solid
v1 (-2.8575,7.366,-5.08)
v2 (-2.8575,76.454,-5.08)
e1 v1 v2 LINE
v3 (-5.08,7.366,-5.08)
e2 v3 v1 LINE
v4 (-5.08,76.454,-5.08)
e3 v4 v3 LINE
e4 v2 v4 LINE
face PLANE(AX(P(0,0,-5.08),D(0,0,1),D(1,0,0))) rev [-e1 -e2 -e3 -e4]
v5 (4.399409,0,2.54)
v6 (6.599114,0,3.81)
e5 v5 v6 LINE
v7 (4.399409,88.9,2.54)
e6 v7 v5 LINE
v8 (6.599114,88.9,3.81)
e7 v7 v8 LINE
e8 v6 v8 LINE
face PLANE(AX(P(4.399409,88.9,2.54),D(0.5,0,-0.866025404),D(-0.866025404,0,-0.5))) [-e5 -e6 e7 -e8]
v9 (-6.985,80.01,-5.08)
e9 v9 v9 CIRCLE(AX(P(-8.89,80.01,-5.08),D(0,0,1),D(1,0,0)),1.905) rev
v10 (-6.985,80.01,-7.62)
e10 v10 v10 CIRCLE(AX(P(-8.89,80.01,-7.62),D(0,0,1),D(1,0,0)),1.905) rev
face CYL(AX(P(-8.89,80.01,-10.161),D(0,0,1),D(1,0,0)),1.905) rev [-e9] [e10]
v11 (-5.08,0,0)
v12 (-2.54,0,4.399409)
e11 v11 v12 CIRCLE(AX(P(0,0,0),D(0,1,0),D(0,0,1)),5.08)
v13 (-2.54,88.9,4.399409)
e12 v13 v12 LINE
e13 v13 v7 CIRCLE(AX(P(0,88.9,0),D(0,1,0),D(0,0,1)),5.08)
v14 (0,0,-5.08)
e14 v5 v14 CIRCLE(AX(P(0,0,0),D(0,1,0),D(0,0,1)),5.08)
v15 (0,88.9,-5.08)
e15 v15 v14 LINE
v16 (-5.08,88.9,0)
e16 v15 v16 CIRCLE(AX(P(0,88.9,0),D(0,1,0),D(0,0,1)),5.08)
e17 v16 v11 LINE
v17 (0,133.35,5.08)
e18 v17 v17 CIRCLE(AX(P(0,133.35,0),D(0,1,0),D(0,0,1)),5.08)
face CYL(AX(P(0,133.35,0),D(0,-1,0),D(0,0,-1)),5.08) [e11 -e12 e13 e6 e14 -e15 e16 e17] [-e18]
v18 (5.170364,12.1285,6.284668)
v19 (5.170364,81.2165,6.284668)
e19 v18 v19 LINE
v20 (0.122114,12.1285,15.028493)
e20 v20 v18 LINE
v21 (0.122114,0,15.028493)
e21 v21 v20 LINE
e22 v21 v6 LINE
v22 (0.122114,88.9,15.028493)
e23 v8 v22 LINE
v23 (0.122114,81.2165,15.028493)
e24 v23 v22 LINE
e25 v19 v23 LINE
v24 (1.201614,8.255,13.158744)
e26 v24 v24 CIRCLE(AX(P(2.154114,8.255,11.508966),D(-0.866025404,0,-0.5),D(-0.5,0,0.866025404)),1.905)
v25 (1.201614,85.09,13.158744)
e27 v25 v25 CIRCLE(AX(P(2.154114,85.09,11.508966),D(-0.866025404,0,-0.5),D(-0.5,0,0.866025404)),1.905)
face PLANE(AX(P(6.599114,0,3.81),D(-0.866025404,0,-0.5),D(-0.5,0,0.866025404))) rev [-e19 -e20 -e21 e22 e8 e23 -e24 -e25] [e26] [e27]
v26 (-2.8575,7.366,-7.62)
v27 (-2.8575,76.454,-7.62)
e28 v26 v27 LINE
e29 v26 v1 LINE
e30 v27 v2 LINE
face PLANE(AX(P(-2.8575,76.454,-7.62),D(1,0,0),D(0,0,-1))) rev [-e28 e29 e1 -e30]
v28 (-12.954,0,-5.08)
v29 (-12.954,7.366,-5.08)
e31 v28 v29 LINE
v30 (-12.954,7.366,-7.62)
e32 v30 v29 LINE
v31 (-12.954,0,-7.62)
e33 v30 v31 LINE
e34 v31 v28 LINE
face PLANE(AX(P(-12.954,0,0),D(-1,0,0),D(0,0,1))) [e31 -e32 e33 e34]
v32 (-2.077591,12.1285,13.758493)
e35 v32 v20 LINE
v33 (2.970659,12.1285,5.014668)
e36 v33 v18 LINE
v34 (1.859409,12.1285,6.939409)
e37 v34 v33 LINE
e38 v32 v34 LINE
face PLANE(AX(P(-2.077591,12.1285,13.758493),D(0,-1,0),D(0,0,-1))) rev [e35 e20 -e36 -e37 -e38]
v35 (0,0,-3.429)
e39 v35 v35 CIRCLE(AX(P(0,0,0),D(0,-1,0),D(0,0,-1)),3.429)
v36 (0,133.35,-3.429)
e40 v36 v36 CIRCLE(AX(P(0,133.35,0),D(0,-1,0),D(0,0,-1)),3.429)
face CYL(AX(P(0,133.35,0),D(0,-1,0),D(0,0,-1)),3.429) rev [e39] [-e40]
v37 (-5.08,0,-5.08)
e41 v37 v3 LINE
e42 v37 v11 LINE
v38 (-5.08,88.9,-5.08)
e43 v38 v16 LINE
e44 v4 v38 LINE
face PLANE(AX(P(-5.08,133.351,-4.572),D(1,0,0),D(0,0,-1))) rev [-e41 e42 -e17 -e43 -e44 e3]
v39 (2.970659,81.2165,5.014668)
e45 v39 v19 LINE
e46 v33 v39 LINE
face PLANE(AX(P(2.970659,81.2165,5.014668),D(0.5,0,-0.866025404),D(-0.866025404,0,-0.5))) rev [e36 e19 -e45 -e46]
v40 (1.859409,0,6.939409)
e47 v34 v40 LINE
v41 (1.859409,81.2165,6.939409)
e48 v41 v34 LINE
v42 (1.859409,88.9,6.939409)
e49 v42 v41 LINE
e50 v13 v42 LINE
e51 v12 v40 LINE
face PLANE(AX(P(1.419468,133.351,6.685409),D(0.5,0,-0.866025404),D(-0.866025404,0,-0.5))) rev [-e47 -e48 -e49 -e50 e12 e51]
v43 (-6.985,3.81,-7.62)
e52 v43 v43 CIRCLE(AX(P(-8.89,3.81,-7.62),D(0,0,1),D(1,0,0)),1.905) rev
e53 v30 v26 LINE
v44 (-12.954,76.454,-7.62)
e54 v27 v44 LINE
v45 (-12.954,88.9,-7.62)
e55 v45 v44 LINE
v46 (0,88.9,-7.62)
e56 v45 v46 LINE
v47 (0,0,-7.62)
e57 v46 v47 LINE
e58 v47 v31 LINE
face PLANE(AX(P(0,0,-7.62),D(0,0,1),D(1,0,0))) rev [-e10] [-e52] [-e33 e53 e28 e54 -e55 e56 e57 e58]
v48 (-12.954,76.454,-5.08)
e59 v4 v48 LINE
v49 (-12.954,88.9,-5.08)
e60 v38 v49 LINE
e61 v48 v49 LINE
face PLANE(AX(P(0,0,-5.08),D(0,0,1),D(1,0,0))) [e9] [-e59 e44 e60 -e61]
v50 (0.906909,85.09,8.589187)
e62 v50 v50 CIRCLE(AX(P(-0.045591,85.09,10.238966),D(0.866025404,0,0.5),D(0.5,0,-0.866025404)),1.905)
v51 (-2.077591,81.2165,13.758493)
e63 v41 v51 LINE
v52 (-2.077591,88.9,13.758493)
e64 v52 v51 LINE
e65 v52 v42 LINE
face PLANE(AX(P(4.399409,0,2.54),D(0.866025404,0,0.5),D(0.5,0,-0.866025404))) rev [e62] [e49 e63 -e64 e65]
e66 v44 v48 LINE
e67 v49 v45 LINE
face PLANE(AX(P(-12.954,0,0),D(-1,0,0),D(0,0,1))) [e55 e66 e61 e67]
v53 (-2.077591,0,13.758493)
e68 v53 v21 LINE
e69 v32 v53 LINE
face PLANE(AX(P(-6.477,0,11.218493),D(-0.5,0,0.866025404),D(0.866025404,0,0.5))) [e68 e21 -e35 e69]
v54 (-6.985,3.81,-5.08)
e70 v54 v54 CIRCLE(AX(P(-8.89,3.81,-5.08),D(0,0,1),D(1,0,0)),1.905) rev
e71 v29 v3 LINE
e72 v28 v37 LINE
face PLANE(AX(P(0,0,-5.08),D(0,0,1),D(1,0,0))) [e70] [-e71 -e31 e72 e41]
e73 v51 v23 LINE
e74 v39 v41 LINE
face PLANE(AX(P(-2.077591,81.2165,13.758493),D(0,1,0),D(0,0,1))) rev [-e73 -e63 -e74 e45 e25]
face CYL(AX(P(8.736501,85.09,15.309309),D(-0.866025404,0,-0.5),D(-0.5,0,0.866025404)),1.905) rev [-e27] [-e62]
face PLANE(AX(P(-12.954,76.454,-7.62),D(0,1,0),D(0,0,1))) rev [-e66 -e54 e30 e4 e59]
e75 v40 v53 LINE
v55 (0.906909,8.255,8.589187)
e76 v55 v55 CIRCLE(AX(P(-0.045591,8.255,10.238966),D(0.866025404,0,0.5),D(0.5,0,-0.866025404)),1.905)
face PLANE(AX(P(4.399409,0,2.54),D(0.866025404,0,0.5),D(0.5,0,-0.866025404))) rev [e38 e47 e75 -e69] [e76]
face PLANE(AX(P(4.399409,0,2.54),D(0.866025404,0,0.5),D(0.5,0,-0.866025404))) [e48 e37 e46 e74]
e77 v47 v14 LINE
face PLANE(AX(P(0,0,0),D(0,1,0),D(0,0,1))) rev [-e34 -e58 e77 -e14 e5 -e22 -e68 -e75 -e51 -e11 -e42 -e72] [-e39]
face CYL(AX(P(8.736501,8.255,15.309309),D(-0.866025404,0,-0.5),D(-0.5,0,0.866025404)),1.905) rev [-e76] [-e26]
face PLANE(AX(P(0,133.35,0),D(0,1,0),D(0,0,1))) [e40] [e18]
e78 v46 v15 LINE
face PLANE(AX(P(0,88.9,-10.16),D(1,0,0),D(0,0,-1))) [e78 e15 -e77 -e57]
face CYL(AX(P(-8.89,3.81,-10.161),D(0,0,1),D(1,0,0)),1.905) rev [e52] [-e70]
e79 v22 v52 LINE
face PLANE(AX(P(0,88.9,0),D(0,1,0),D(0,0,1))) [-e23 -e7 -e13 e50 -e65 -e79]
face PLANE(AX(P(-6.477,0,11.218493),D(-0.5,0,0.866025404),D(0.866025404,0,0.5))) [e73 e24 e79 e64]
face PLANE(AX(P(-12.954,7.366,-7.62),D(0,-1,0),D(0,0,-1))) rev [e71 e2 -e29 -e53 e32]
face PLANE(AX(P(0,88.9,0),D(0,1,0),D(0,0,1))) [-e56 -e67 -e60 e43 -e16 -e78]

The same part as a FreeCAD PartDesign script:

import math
import FreeCAD as App
import Part
import Sketcher
from FreeCAD import Vector
Q = App.Units.Quantity


def add_polygon(sketch, points):
    """Adds a closed chain of lines whose ends are joined by coincident constraints."""
    first, n = sketch.GeometryCount, len(points)
    for a, b in zip(points, points[1:] + points[:1]):
        sketch.addGeometry(Part.LineSegment(App.Vector(*a, 0), App.Vector(*b, 0)), False)
    for i in range(n):
        sketch.addConstraint(Sketcher.Constraint("Coincident", first + i, 2, first + (i + 1) % n, 1))

doc = App.newDocument("Part")
body = doc.addObject("PartDesign::Body", "Body")

sketch1 = body.newObject("Sketcher::SketchObject", "Sketch")
sketch1.AttachmentSupport = (doc.getObject("XZ_Plane"), [""])
sketch1.MapMode = "FlatFace"
sketch1.addGeometry(Part.Circle(Vector(0, 0, 0), Vector(0, 0, 1), 5.08), False)
sketch1.addConstraint([
    Sketcher.Constraint("Coincident", 0, 3, -1, 1),
    Sketcher.Constraint("Diameter", 0, Q("0.4 in")),
])
pad1 = body.newObject("PartDesign::Pad", "Pad")
pad1.Profile = sketch1
pad1.Length = Q("5.25 in")
pad1.Reversed = True

sketch2 = body.newObject("Sketcher::SketchObject", "Sketch001")
sketch2.AttachmentSupport = (doc.getObject("XZ_Plane"), [""])
sketch2.MapMode = "FlatFace"
sketch2.addGeometry(Part.Circle(Vector(0, 0, 0), Vector(0, 0, 1), 3.429), False)
sketch2.addConstraint([
    Sketcher.Constraint("Coincident", 0, 3, -1, 1),
    Sketcher.Constraint("Diameter", 0, Q("0.27 in")),
])
pocket1 = body.newObject("PartDesign::Pocket", "Pocket")
pocket1.Profile = sketch2
pocket1.Type = "ThroughAll"

sketch3 = body.newObject("Sketcher::SketchObject", "Sketch002")
sketch3.AttachmentSupport = (doc.getObject("XZ_Plane"), [""])
sketch3.MapMode = "FlatFace"
sketch3.addGeometry([
    Part.LineSegment(Vector(-5.842, 10.118641, 0), Vector(-2.54, 4.399409, 0)),
    Part.ArcOfCircle(Part.Circle(Vector(-0.777057, 0.448634, 0), Vector(0, 0, 1), 4.326268), math.radians(-174.047728), math.radians(114.047728)),
    Part.LineSegment(Vector(-5.08, 0, 0), Vector(-11.684, 0, 0)),
    Part.LineSegment(Vector(-11.684, 0, 0), Vector(-11.684, -10.16, 0)),
    Part.LineSegment(Vector(-11.684, -10.16, 0), Vector(0, -10.16, 0)),
    Part.LineSegment(Vector(0, -10.16, 0), Vector(0, -5.08, 0)),
    Part.ArcOfCircle(Part.Circle(Vector(0, 0, 0), Vector(0, 0, 1), 5.08), math.radians(-90), math.radians(30)),
    Part.LineSegment(Vector(4.399409, 2.54, 0), Vector(8.798818, 5.08, 0)),
    Part.LineSegment(Vector(8.798818, 5.08, 0), Vector(2.956818, 15.198641, 0)),
    Part.LineSegment(Vector(2.956818, 15.198641, 0), Vector(-5.842, 10.118641, 0)),
], False)
sketch3.addConstraint([
    Sketcher.Constraint("Coincident", 0, 2, 1, 2),
    Sketcher.Constraint("Coincident", 1, 1, 2, 1),
    Sketcher.Constraint("Coincident", 2, 2, 3, 1),
    Sketcher.Constraint("Coincident", 3, 2, 4, 1),
    Sketcher.Constraint("Coincident", 4, 2, 5, 1),
    Sketcher.Constraint("Coincident", 5, 2, 6, 1),
    Sketcher.Constraint("Coincident", 6, 2, 7, 1),
    Sketcher.Constraint("Coincident", 7, 2, 8, 1),
    Sketcher.Constraint("Coincident", 8, 2, 9, 1),
    Sketcher.Constraint("Coincident", 9, 2, 0, 1),
    Sketcher.Constraint("Horizontal", 2),
    Sketcher.Constraint("Vertical", 3),
    Sketcher.Constraint("Horizontal", 4),
    Sketcher.Constraint("Vertical", 5),
    Sketcher.Constraint("Coincident", 6, 3, -1, 1),
    Sketcher.Constraint("PointOnObject", 1, 1, -1),
    Sketcher.Constraint("PointOnObject", 4, 2, -2),
    Sketcher.Constraint("Perpendicular", 0, 7),
    Sketcher.Constraint("Perpendicular", 7, 8),
    Sketcher.Constraint("Perpendicular", 8, 9),
    Sketcher.Constraint("Radius", 6, Q("0.2 in")),
    Sketcher.Constraint("DistanceY", 3, 2, 3, 1, Q("0.4 in")),
    Sketcher.Constraint("Angle", 0, Q("-60 deg")),
    Sketcher.Constraint("Distance", 7, Q("0.2 in")),
    Sketcher.Constraint("Distance", 9, Q("0.4 in")),
    Sketcher.Constraint("DistanceX", 2, 2, 2, 1, Q("0.26 in")),
    Sketcher.Constraint("DistanceX", 4, 1, 4, 2, Q("0.46 in")),
    Sketcher.Constraint("DistanceX", 0, 2, -1, 1, Q("0.1 in")),
    Sketcher.Constraint("DistanceY", -1, 1, 6, 2, Q("0.1 in")),
    Sketcher.Constraint("Distance", 0, Q("0.26 in")),
    Sketcher.Constraint("Radius", 1, Q("4.326268 mm")),
])
pad2 = body.newObject("PartDesign::Pad", "Pad001")
pad2.Profile = sketch3
pad2.Length = Q("3.5 in")
pad2.Reversed = True

sketch4 = body.newObject("Sketcher::SketchObject", "Sketch003")
sketch4.AttachmentSupport = (doc.getObject("XY_Plane"), [""])
sketch4.MapMode = "FlatFace"
sketch4.addGeometry(Part.Circle(Vector(-8.89, 80.01, 0), Vector(0, 0, 1), 1.905), False)
sketch4.addConstraint([
    Sketcher.Constraint("Diameter", 0, Q("0.15 in")),
    Sketcher.Constraint("DistanceX", 0, 3, -1, 1, Q("0.35 in")),
    Sketcher.Constraint("DistanceY", -1, 1, 0, 3, Q("3.15 in")),
])
pocket2 = body.newObject("PartDesign::Pocket", "Pocket001")
pocket2.Profile = sketch4
pocket2.Type = "UpToFirst"

sketch5 = body.newObject("Sketcher::SketchObject", "Sketch004")
sketch5.AttachmentSupport = (doc.getObject("XY_Plane"), [""])
sketch5.MapMode = "FlatFace"
sketch5.addGeometry(Part.Circle(Vector(-8.89, 3.81, 0), Vector(0, 0, 1), 1.905), False)
sketch5.addConstraint([
    Sketcher.Constraint("Diameter", 0, Q("0.15 in")),
    Sketcher.Constraint("DistanceX", 0, 3, -1, 1, Q("0.35 in")),
    Sketcher.Constraint("DistanceY", -1, 1, 0, 3, Q("0.15 in")),
])
pocket3 = body.newObject("PartDesign::Pocket", "Pocket002")
pocket3.Profile = sketch5
pocket3.Type = "UpToFirst"

sketch6 = body.newObject("Sketcher::SketchObject", "Sketch005")
sketch6.Placement = App.Placement(Vector(0, 0, 0), App.Rotation(Vector(0.5, 0, -0.866025404), Vector(0, 1, 0), Vector(0.866025404, 0, 0.5), "ZXY"))
sketch6.addGeometry(Part.Circle(Vector(-8.89, 85.09, 0), Vector(0, 0, 1), 1.905), False)
sketch6.addConstraint([
    Sketcher.Constraint("Diameter", 0, Q("0.15 in")),
    Sketcher.Constraint("DistanceX", 0, 3, -1, 1, Q("0.35 in")),
    Sketcher.Constraint("DistanceY", -1, 1, 0, 3, Q("3.35 in")),
])
pocket4 = body.newObject("PartDesign::Pocket", "Pocket003")
pocket4.Profile = sketch6
pocket4.Type = "UpToFirst"
pocket4.Reversed = True

sketch7 = body.newObject("Sketcher::SketchObject", "Sketch006")
sketch7.Placement = App.Placement(Vector(0, 0, 0), App.Rotation(Vector(0.5, 0, -0.866025404), Vector(0, 1, 0), Vector(0.866025404, 0, 0.5), "ZXY"))
sketch7.addGeometry(Part.Circle(Vector(-8.89, 8.255, 0), Vector(0, 0, 1), 1.905), False)
sketch7.addConstraint([
    Sketcher.Constraint("Diameter", 0, Q("0.15 in")),
    Sketcher.Constraint("DistanceX", 0, 3, -1, 1, Q("0.35 in")),
    Sketcher.Constraint("DistanceY", -1, 1, 0, 3, Q("0.325 in")),
])
pocket5 = body.newObject("PartDesign::Pocket", "Pocket004")
pocket5.Profile = sketch7
pocket5.Type = "UpToFirst"
pocket5.Reversed = True

sketch8 = body.newObject("Sketcher::SketchObject", "Sketch007")
sketch8.AttachmentSupport = (doc.getObject("XZ_Plane"), [""])
sketch8.MapMode = "FlatFace"
add_polygon(sketch8, [(-1.882532, 12.404641), (-5.842, 10.118641), (-2.54, 4.399409), (1.419468, 6.685409)])
sketch8.addConstraint([
    Sketcher.Constraint("Perpendicular", 0, 1),
    Sketcher.Constraint("Perpendicular", 1, 2),
    Sketcher.Constraint("Perpendicular", 2, 3),
    Sketcher.Constraint("Angle", 0, Q("-150 deg")),
    Sketcher.Constraint("DistanceX", 1, 2, -1, 1, Q("0.1 in")),
    Sketcher.Constraint("Distance", 0, Q("0.18 in")),
    Sketcher.Constraint("Distance", 1, Q("0.26 in")),
    Sketcher.Constraint("DistanceY", -1, 1, 0, 2, Q("10.118641 mm")),
])
pocket6 = body.newObject("PartDesign::Pocket", "Pocket005")
pocket6.Profile = sketch8
pocket6.Type = "UpToFirst"

sketch9 = body.newObject("Sketcher::SketchObject", "Sketch008")
sketch9.AttachmentSupport = (doc.getObject("XZ_Plane"), [""])
sketch9.MapMode = "FlatFace"
add_polygon(sketch9, [(-11.684, 0), (-11.684, -4.572), (-5.08, -4.572), (-5.08, 0)])
sketch9.addConstraint([
    Sketcher.Constraint("Vertical", 0),
    Sketcher.Constraint("Horizontal", 1),
    Sketcher.Constraint("Vertical", 2),
    Sketcher.Constraint("Horizontal", 3),
    Sketcher.Constraint("PointOnObject", 2, 2, -1),
    Sketcher.Constraint("DistanceX", 1, 1, 1, 2, Q("0.26 in")),
    Sketcher.Constraint("DistanceY", 0, 2, 0, 1, Q("0.18 in")),
    Sketcher.Constraint("DistanceX", 1, 2, -1, 1, Q("0.2 in")),
])
pocket7 = body.newObject("PartDesign::Pocket", "Pocket006")
pocket7.Profile = sketch9
pocket7.Length = Q("3.5 in")

sketch10 = body.newObject("Sketcher::SketchObject", "Sketch009")
sketch10.AttachmentSupport = (doc.getObject("XY_Plane"), [""])
sketch10.MapMode = "FlatFace"
sketch10.AttachmentOffset = App.Placement(Vector(0, 0, -0.4 * 25.4), App.Rotation())
add_polygon(sketch10, [(0, 88.9), (0, 0), (-11.684, 0), (-11.684, 88.9)])
sketch10.addConstraint([
    Sketcher.Constraint("Vertical", 0),
    Sketcher.Constraint("Horizontal", 1),
    Sketcher.Constraint("Vertical", 2),
    Sketcher.Constraint("Horizontal", 3),
    Sketcher.Constraint("Coincident", 0, 2, -1, 1),
    Sketcher.Constraint("DistanceY", 0, 2, 0, 1, Q("3.5 in")),
    Sketcher.Constraint("DistanceX", 1, 2, 1, 1, Q("0.46 in")),
])
pocket8 = body.newObject("PartDesign::Pocket", "Pocket007")
pocket8.Profile = sketch10
pocket8.Length = Q("0.1 in")
pocket8.Reversed = True

sketch11 = body.newObject("Sketcher::SketchObject", "Sketch010")
sketch11.Placement = App.Placement(Vector(8.798818, 0, 5.08), App.Rotation(Vector(0.5, 0, -0.866025404), Vector(0, 1, 0), Vector(0.866025404, 0, 0.5), "ZXY"))
add_polygon(sketch11, [(-11.684, 88.9), (-11.684, 0), (0, 0), (0, 88.9)])
sketch11.addConstraint([
    Sketcher.Constraint("Vertical", 0),
    Sketcher.Constraint("Horizontal", 1),
    Sketcher.Constraint("Vertical", 2),
    Sketcher.Constraint("Horizontal", 3),
    Sketcher.Constraint("Coincident", 1, 2, -1, 1),
    Sketcher.Constraint("DistanceY", 0, 2, 0, 1, Q("3.5 in")),
    Sketcher.Constraint("DistanceX", 1, 1, 1, 2, Q("0.46 in")),
])
pocket9 = body.newObject("PartDesign::Pocket", "Pocket008")
pocket9.Profile = sketch11
pocket9.Length = Q("0.1 in")

sketch12 = body.newObject("Sketcher::SketchObject", "Sketch011")
sketch12.AttachmentSupport = (doc.getObject("XY_Plane"), [""])
sketch12.MapMode = "FlatFace"
sketch12.AttachmentOffset = App.Placement(Vector(0, 0, -0.18 * 25.4), App.Rotation())
add_polygon(sketch12, [(-11.684, 88.9), (-11.684, 0), (-5.08, 0), (-5.08, 88.9)])
sketch12.addConstraint([
    Sketcher.Constraint("Vertical", 0),
    Sketcher.Constraint("Horizontal", 1),
    Sketcher.Constraint("Vertical", 2),
    Sketcher.Constraint("Horizontal", 3),
    Sketcher.Constraint("PointOnObject", 0, 2, -1),
    Sketcher.Constraint("DistanceY", 0, 2, 0, 1, Q("3.5 in")),
    Sketcher.Constraint("DistanceX", 1, 1, 1, 2, Q("0.26 in")),
    Sketcher.Constraint("DistanceX", 1, 2, -1, 1, Q("0.2 in")),
])
pocket10 = body.newObject("PartDesign::Pocket", "Pocket009")
pocket10.Profile = sketch12
pocket10.Length = Q("0.02 in")

sketch13 = body.newObject("Sketcher::SketchObject", "Sketch012")
sketch13.Placement = App.Placement(Vector(3.959468, 0, 2.286), App.Rotation(Vector(-0.5, 0, 0.866025404), Vector(0, 1, 0), Vector(-0.866025404, 0, -0.5), "ZXY"))
add_polygon(sketch13, [(5.08, 88.9), (5.08, 0), (11.684, 0), (11.684, 88.9)])
sketch13.addConstraint([
    Sketcher.Constraint("Vertical", 0),
    Sketcher.Constraint("Horizontal", 1),
    Sketcher.Constraint("Vertical", 2),
    Sketcher.Constraint("Horizontal", 3),
    Sketcher.Constraint("PointOnObject", 0, 2, -1),
    Sketcher.Constraint("DistanceY", 0, 2, 0, 1, Q("3.5 in")),
    Sketcher.Constraint("DistanceX", 1, 1, 1, 2, Q("0.26 in")),
    Sketcher.Constraint("DistanceX", -1, 1, 0, 2, Q("0.2 in")),
])
pocket11 = body.newObject("PartDesign::Pocket", "Pocket010")
pocket11.Profile = sketch13
pocket11.Length = Q("0.02 in")

sketch14 = body.newObject("Sketcher::SketchObject", "Sketch013")
sketch14.Placement = App.Placement(Vector(-5.842, 0, 10.118641), App.Rotation(Vector(0.866025404, 0, 0.5), Vector(0, 1, 0), Vector(-0.5, 0, 0.866025404), "ZXY"))
add_polygon(sketch14, [(5.08, 88.9), (5.08, 0), (7.62, 0), (7.62, 88.9)])
sketch14.addConstraint([
    Sketcher.Constraint("Vertical", 0),
    Sketcher.Constraint("Horizontal", 1),
    Sketcher.Constraint("Vertical", 2),
    Sketcher.Constraint("Horizontal", 3),
    Sketcher.Constraint("PointOnObject", 0, 2, -1),
    Sketcher.Constraint("DistanceX", 1, 1, 1, 2, Q("0.1 in")),
    Sketcher.Constraint("DistanceY", 0, 2, 0, 1, Q("3.5 in")),
    Sketcher.Constraint("DistanceX", -1, 1, 0, 2, Q("0.2 in")),
])
pad3 = body.newObject("PartDesign::Pad", "Pad002")
pad3.Profile = sketch14
pad3.Length = Q("0.05 in")

sketch15 = body.newObject("Sketcher::SketchObject", "Sketch014")
sketch15.AttachmentSupport = (doc.getObject("YZ_Plane"), [""])
sketch15.MapMode = "FlatFace"
sketch15.AttachmentOffset = App.Placement(Vector(0, 0, -0.46 * 25.4), App.Rotation())
add_polygon(sketch15, [(88.9, -7.62), (0, -7.62), (0, -5.08), (88.9, -5.08)])
sketch15.addConstraint([
    Sketcher.Constraint("Horizontal", 0),
    Sketcher.Constraint("Vertical", 1),
    Sketcher.Constraint("Horizontal", 2),
    Sketcher.Constraint("Vertical", 3),
    Sketcher.Constraint("PointOnObject", 0, 2, -2),
    Sketcher.Constraint("DistanceX", 0, 2, 0, 1, Q("3.5 in")),
    Sketcher.Constraint("DistanceY", 1, 1, 1, 2, Q("0.1 in")),
    Sketcher.Constraint("DistanceY", 0, 2, -1, 1, Q("0.3 in")),
])
pad4 = body.newObject("PartDesign::Pad", "Pad003")
pad4.Profile = sketch15
pad4.Length = Q("0.05 in")
pad4.Reversed = True

sketch16 = body.newObject("Sketcher::SketchObject", "Sketch015")
sketch16.AttachmentSupport = (doc.getObject("XY_Plane"), [""])
sketch16.MapMode = "FlatFace"
sketch16.AttachmentOffset = App.Placement(Vector(0, 0, -0.2 * 25.4), App.Rotation())
add_polygon(sketch16, [(-12.954, 76.454), (-12.954, 7.366), (-2.8575, 7.366), (-2.8575, 76.454)])
sketch16.addConstraint([
    Sketcher.Constraint("Vertical", 0),
    Sketcher.Constraint("Horizontal", 1),
    Sketcher.Constraint("Vertical", 2),
    Sketcher.Constraint("Horizontal", 3),
    Sketcher.Constraint("DistanceY", 0, 2, 0, 1, Q("2.72 in")),
    Sketcher.Constraint("DistanceX", 0, 2, -1, 1, Q("0.51 in")),
    Sketcher.Constraint("DistanceY", -1, 1, 0, 2, Q("0.29 in")),
    Sketcher.Constraint("DistanceX", 1, 1, 1, 2, Q("0.3975 in")),
])
pocket12 = body.newObject("PartDesign::Pocket", "Pocket011")
pocket12.Profile = sketch16
pocket12.Length = Q("0.1 in")

sketch17 = body.newObject("Sketcher::SketchObject", "Sketch016")
sketch17.Placement = App.Placement(Vector(6.599114, 0, 3.81), App.Rotation(Vector(0.5, 0, -0.866025404), Vector(0, 1, 0), Vector(0.866025404, 0, 0.5), "ZXY"))
add_polygon(sketch17, [(-12.954, 81.2165), (-12.954, 12.1285), (-2.8575, 12.1285), (-2.8575, 81.2165)])
sketch17.addConstraint([
    Sketcher.Constraint("Vertical", 0),
    Sketcher.Constraint("Horizontal", 1),
    Sketcher.Constraint("Vertical", 2),
    Sketcher.Constraint("Horizontal", 3),
    Sketcher.Constraint("DistanceY", 0, 2, 0, 1, Q("2.72 in")),
    Sketcher.Constraint("DistanceX", 0, 2, -1, 1, Q("0.51 in")),
    Sketcher.Constraint("DistanceX", 1, 1, 1, 2, Q("0.3975 in")),
    Sketcher.Constraint("DistanceY", -1, 1, 0, 2, Q("0.4775 in")),
])
pocket13 = body.newObject("PartDesign::Pocket", "Pocket012")
pocket13.Profile = sketch17
pocket13.Length = Q("0.1 in")

doc.recompute()
